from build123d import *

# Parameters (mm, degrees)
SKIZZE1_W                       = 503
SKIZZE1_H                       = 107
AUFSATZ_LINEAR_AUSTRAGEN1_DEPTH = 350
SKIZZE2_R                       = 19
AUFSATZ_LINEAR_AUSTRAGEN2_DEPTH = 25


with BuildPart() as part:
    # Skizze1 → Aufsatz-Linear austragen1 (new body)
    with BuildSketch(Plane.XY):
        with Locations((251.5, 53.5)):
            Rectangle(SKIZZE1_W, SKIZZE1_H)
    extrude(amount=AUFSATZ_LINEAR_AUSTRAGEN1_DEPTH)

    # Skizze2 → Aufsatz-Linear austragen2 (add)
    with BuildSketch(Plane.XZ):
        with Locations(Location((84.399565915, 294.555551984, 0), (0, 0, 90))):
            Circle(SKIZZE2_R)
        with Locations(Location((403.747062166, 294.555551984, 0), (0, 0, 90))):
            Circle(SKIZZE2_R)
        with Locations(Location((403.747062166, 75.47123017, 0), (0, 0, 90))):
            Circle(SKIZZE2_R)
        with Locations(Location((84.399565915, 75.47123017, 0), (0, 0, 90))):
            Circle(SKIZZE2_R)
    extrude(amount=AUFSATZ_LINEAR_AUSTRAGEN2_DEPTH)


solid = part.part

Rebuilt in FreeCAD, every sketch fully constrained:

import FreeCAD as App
import Part
import Sketcher

V = App.Vector
Q = App.Units.Quantity


def add_polygon(sketch, points):
    """Adds a closed chain of lines whose ends are joined by coincident constraints."""
    first, n = sketch.GeometryCount, len(points)
    for a, b in zip(points, points[1:] + points[:1]):
        sketch.addGeometry(Part.LineSegment(App.Vector(*a, 0), App.Vector(*b, 0)), False)
    for i in range(n):
        sketch.addConstraint(Sketcher.Constraint("Coincident", first + i, 2, first + (i + 1) % n, 1))

doc = App.newDocument("Part")
body = doc.addObject("PartDesign::Body", "Body")

# Sketch on XY plane
sketch1 = doc.addObject("Sketcher::SketchObject", "Sketch")
body.addObject(sketch1)
sketch1.AttachmentSupport = (doc.XY_Plane, [""])
sketch1.MapMode = "FlatFace"
add_polygon(sketch1, [(0, 107), (0, 0), (503, 0), (503, 107)])  # lines 0-3
sketch1.addConstraint(Sketcher.Constraint("Vertical", 0))
sketch1.addConstraint(Sketcher.Constraint("Horizontal", 1))
sketch1.addConstraint(Sketcher.Constraint("Vertical", 2))
sketch1.addConstraint(Sketcher.Constraint("Horizontal", 3))
sketch1.addConstraint(Sketcher.Constraint("Coincident", 0, 2, -1, 1))
sketch1.addConstraint(Sketcher.Constraint("DistanceX", 1, 1, 1, 2, Q("503 mm")))
sketch1.addConstraint(Sketcher.Constraint("DistanceY", 0, 2, 0, 1, Q("107 mm")))
pad1 = doc.addObject("PartDesign::Pad", "Pad")
body.addObject(pad1)
pad1.Profile = sketch1
pad1.Length = 350

# Sketch on XZ plane
sketch2 = doc.addObject("Sketcher::SketchObject", "Sketch001")
body.addObject(sketch2)
sketch2.AttachmentSupport = (doc.XZ_Plane, [""])
sketch2.MapMode = "FlatFace"
sketch2.addGeometry(Part.Circle(V(84, 295, 0), V(0, 0, 1), 19), False)
sketch2.addGeometry(Part.Circle(V(404, 295, 0), V(0, 0, 1), 19), False)
sketch2.addGeometry(Part.Circle(V(404, 75, 0), V(0, 0, 1), 19), False)
sketch2.addGeometry(Part.Circle(V(84, 75, 0), V(0, 0, 1), 19), False)
sketch2.addConstraint(Sketcher.Constraint("Equal", 0, 1))
sketch2.addConstraint(Sketcher.Constraint("Equal", 1, 2))
sketch2.addConstraint(Sketcher.Constraint("Equal", 2, 3))
sketch2.addConstraint(Sketcher.Constraint("Horizontal", 0, 3, 1, 3))
sketch2.addConstraint(Sketcher.Constraint("Horizontal", 2, 3, 3, 3))
sketch2.addConstraint(Sketcher.Constraint("Vertical", 1, 3, 2, 3))
sketch2.addConstraint(Sketcher.Constraint("Vertical", 0, 3, 3, 3))
sketch2.addConstraint(Sketcher.Constraint("Diameter", 0, Q("38 mm")))
sketch2.addConstraint(Sketcher.Constraint("DistanceY", -1, 1, 0, 3, Q("294.555552 mm")))
sketch2.addConstraint(Sketcher.Constraint("DistanceY", -1, 1, 2, 3, Q("75.47123 mm")))
sketch2.addConstraint(Sketcher.Constraint("DistanceX", -1, 1, 0, 3, Q("84.399566 mm")))
sketch2.addConstraint(Sketcher.Constraint("DistanceX", -1, 1, 1, 3, Q("403.747062 mm")))
pad2 = doc.addObject("PartDesign::Pad", "Pad001")
body.addObject(pad2)
pad2.Profile = sketch2
pad2.Length = 25

doc.recompute()
